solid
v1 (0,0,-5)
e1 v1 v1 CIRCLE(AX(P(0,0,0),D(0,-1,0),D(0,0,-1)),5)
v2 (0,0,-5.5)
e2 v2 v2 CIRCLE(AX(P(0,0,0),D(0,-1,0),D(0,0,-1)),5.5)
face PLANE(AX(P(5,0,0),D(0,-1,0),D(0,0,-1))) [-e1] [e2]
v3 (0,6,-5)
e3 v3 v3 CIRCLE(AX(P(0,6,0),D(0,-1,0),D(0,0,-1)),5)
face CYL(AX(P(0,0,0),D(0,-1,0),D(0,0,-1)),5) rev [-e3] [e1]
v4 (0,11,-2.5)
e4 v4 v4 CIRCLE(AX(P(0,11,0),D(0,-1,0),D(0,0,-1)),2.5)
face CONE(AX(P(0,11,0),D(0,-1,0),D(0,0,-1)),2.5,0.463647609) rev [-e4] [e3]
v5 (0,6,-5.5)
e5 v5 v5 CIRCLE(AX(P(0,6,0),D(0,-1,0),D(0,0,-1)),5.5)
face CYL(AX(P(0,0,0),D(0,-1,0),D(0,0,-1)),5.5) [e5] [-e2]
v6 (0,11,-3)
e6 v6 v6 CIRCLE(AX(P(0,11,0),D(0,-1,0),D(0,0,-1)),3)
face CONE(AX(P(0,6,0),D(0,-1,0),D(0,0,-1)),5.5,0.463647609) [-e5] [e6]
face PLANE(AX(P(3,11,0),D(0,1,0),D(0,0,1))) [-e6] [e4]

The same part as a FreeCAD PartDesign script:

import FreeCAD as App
import Part
import Sketcher

V = App.Vector
Q = App.Units.Quantity

doc = App.newDocument("Part")
body = doc.addObject("PartDesign::Body", "Body")

# Sketch on XY plane
sketch1 = body.newObject("Sketcher::SketchObject", "Sketch")
sketch1.AttachmentSupport = (doc.getObject("XY_Plane"), [""])
sketch1.MapMode = "FlatFace"
sketch1.addGeometry([
    Part.LineSegment(V(5.5, 0, 0), V(5.5, 6, 0)),  # 0
    Part.LineSegment(V(5.5, 6, 0), V(3, 11, 0)),  # 1
    Part.LineSegment(V(3, 11, 0), V(2.5, 11, 0)),  # 2
    Part.LineSegment(V(2.5, 11, 0), V(5, 6, 0)),  # 3
    Part.LineSegment(V(5, 6, 0), V(5, 0, 0)),  # 4
    Part.LineSegment(V(5, 0, 0), V(5.5, 0, 0)),  # 5
], False)
sketch1.addConstraint([
    Sketcher.Constraint("Coincident", 0, 2, 1, 1),
    Sketcher.Constraint("Coincident", 1, 2, 2, 1),
    Sketcher.Constraint("Coincident", 2, 2, 3, 1),
    Sketcher.Constraint("Coincident", 3, 2, 4, 1),
    Sketcher.Constraint("Coincident", 4, 2, 5, 1),
    Sketcher.Constraint("Coincident", 5, 2, 0, 1),
    Sketcher.Constraint("Vertical", 0),
    Sketcher.Constraint("Horizontal", 2),
    Sketcher.Constraint("Vertical", 4),
    Sketcher.Constraint("Horizontal", 5),
    Sketcher.Constraint("PointOnObject", 4, 2, -1),
    Sketcher.Constraint("Parallel", 1, 3),
    Sketcher.Constraint("Horizontal", 0, 2, 3, 2),
    Sketcher.Constraint("DistanceY", 0, 1, 0, 2, Q("6 mm")),
    Sketcher.Constraint("DistanceX", 2, 2, 2, 1, Q("0.5 mm")),
    Sketcher.Constraint("DistanceX", -1, 1, 1, 2, Q("3 mm")),
    Sketcher.Constraint("DistanceY", -1, 1, 1, 2, Q("11 mm")),
    Sketcher.Constraint("DistanceX", -1, 1, 3, 2, Q("5 mm")),
])
revolution = body.newObject("PartDesign::Revolution", "Revolution")
revolution.Profile = sketch1
revolution.ReferenceAxis = (sketch1, ["V_Axis"])
revolution.Angle = 360

doc.recompute()
